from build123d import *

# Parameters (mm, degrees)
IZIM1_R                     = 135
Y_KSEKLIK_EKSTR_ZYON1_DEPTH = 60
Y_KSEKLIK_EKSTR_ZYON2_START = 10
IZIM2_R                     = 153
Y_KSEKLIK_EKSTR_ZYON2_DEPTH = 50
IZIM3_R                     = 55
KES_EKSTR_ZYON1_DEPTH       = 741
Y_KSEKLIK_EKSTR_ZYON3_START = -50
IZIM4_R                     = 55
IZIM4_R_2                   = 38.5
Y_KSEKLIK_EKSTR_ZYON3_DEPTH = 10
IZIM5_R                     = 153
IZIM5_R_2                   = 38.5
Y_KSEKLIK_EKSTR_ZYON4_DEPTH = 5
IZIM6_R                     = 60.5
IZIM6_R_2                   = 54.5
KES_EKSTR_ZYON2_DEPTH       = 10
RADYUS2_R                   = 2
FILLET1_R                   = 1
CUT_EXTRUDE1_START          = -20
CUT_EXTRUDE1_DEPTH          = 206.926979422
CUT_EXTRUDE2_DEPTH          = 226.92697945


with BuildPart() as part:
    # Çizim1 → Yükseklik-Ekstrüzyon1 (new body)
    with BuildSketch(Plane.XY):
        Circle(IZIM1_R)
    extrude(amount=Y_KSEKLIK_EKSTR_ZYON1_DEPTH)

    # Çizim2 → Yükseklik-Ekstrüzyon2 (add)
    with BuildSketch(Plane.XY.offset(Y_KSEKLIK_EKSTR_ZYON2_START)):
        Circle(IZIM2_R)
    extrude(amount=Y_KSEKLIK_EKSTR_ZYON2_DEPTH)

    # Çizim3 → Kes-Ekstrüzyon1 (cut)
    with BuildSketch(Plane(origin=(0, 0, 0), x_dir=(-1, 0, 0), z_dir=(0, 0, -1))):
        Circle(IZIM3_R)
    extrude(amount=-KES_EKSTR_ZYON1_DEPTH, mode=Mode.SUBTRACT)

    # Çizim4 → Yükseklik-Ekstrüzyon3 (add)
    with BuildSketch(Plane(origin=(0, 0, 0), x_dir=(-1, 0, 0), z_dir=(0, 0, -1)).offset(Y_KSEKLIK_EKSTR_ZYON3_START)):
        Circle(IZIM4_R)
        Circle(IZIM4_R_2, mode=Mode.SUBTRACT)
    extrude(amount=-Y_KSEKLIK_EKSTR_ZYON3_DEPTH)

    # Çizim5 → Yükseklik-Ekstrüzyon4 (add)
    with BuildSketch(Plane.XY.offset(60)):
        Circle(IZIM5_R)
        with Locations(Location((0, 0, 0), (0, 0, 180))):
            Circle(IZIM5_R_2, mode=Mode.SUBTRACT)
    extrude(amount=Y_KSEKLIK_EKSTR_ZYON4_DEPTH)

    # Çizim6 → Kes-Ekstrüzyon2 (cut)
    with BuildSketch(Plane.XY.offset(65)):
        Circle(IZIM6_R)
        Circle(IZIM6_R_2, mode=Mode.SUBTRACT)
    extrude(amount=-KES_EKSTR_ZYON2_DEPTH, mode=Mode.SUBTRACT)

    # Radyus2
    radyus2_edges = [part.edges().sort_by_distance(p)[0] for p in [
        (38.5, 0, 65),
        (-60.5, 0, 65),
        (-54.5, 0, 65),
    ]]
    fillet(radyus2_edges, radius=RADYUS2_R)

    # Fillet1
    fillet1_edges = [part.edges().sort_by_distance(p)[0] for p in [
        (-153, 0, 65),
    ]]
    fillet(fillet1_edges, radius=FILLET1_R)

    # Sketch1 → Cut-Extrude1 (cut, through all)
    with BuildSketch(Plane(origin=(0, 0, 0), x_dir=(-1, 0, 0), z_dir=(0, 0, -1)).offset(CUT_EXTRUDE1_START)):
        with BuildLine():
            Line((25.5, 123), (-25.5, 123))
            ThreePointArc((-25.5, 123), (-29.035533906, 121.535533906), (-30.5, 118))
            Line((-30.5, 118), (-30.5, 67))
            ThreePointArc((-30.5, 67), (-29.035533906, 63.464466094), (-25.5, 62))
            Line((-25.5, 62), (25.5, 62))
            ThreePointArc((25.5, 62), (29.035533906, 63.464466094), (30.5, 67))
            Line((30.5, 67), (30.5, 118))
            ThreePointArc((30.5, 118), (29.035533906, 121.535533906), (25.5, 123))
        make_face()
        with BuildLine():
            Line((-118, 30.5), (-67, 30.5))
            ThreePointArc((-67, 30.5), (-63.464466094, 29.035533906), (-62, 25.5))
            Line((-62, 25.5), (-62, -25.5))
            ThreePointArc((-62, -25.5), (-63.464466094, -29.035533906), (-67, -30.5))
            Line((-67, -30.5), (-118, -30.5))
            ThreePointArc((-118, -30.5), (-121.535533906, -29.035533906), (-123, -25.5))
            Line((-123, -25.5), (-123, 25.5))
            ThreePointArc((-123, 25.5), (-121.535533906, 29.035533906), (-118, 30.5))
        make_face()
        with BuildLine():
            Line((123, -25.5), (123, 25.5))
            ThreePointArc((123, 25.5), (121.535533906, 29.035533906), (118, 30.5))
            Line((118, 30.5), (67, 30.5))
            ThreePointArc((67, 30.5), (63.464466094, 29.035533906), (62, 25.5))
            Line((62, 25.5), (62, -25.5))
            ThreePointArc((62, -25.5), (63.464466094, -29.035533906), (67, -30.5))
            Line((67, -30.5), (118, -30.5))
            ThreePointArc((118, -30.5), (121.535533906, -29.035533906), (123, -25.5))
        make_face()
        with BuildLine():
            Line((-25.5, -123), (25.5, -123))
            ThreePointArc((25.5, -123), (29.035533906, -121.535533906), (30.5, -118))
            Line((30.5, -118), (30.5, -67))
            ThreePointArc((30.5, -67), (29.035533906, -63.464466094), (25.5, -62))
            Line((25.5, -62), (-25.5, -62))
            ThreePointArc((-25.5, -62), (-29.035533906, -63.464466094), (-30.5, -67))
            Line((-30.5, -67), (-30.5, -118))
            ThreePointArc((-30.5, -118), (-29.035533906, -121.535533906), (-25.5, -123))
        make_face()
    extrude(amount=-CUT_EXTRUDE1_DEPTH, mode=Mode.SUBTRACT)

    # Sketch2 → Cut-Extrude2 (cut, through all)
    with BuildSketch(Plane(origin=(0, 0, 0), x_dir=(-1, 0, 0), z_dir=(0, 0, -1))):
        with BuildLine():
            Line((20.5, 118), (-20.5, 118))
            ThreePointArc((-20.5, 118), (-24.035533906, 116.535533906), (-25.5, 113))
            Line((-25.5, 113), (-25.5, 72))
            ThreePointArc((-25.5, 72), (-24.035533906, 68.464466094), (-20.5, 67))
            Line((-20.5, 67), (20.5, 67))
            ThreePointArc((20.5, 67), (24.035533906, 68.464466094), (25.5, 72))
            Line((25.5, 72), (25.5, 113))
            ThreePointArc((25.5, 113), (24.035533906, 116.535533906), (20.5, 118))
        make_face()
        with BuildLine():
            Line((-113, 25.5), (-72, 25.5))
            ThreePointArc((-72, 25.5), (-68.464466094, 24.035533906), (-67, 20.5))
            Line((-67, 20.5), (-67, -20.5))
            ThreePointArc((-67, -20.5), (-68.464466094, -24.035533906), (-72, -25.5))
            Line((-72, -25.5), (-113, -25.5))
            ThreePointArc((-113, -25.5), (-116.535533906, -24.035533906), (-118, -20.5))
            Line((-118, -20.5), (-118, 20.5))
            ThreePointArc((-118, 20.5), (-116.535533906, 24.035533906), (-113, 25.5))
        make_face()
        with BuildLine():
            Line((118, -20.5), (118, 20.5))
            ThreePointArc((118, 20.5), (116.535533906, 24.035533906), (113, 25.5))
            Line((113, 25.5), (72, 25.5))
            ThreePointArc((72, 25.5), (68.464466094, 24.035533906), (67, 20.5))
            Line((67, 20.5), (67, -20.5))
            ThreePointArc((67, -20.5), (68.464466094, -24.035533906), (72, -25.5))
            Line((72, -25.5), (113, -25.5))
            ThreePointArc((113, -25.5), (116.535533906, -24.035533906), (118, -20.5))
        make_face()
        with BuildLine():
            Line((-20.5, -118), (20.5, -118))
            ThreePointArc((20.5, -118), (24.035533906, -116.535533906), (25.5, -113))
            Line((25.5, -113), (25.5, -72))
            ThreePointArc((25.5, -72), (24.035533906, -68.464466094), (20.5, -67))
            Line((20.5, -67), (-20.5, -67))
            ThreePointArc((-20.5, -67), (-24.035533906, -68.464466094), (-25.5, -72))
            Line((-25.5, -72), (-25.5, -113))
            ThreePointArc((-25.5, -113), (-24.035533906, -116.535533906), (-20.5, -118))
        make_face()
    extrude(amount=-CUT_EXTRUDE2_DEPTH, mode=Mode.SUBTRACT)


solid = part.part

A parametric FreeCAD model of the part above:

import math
import FreeCAD as App
import Part
import Sketcher


def edges_at(feature, points):
    """Names of the edges that pass closest to the given points."""
    edges = feature.Shape.Edges
    near = lambda p: min(range(len(edges)), key=lambda i: edges[i].distToShape(Part.Vertex(*p))[0])
    return sorted({f"Edge{near(p) + 1}" for p in points})

doc = App.newDocument("Part")
body = doc.addObject("PartDesign::Body", "Body")

# Sketch on XY plane
sketch1 = doc.addObject("Sketcher::SketchObject", "Sketch")
body.addObject(sketch1)
sketch1.AttachmentSupport = (doc.XY_Plane, [""])
sketch1.MapMode = "FlatFace"
sketch1.addGeometry(Part.Circle(App.Vector(0, 0, 0), App.Vector(0, 0, 1), 135), False)
sketch1.addConstraint([
    Sketcher.Constraint("Coincident", 0, 3, -1, 1),
    Sketcher.Constraint("Diameter", 0, 270.0),
])
pad1 = doc.addObject("PartDesign::Pad", "Pad")
body.addObject(pad1)
pad1.Profile = sketch1
pad1.Length = 60

# Sketch on XY plane
sketch2 = doc.addObject("Sketcher::SketchObject", "Sketch001")
body.addObject(sketch2)
sketch2.AttachmentSupport = (doc.XY_Plane, [""])
sketch2.MapMode = "FlatFace"
sketch2.AttachmentOffset = App.Placement(App.Vector(0, 0, 10), App.Rotation())
sketch2.addGeometry(Part.Circle(App.Vector(0, 0, 0), App.Vector(0, 0, 1), 153), False)
sketch2.addConstraint([
    Sketcher.Constraint("Coincident", 0, 3, -1, 1),
    Sketcher.Constraint("Diameter", 0, 306.0),
])
pad2 = doc.addObject("PartDesign::Pad", "Pad001")
body.addObject(pad2)
pad2.Profile = sketch2
pad2.Length = 50

# Sketch on XY plane
sketch3 = doc.addObject("Sketcher::SketchObject", "Sketch002")
body.addObject(sketch3)
sketch3.AttachmentSupport = (doc.XY_Plane, [""])
sketch3.MapMode = "FlatFace"
sketch3.addGeometry(Part.Circle(App.Vector(0, 0, 0), App.Vector(0, 0, 1), 55), False)
sketch3.addConstraint([
    Sketcher.Constraint("Coincident", 0, 3, -1, 1),
    Sketcher.Constraint("Diameter", 0, 110.0),
])
pocket1 = doc.addObject("PartDesign::Pocket", "Pocket")
body.addObject(pocket1)
pocket1.Profile = sketch3
pocket1.Length = 741
pocket1.Reversed = True

# Sketch on XY plane
sketch4 = doc.addObject("Sketcher::SketchObject", "Sketch003")
body.addObject(sketch4)
sketch4.AttachmentSupport = (doc.XY_Plane, [""])
sketch4.MapMode = "FlatFace"
sketch4.AttachmentOffset = App.Placement(App.Vector(0, 0, 50), App.Rotation())
sketch4.addGeometry([
    Part.Circle(App.Vector(0, 0, 0), App.Vector(0, 0, 1), 55),
    Part.Circle(App.Vector(0, 0, 0), App.Vector(0, 0, 1), 38),
], False)
sketch4.addConstraint([
    Sketcher.Constraint("Coincident", 0, 3, -1, 1),
    Sketcher.Constraint("Coincident", 1, 3, -1, 1),
    Sketcher.Constraint("Diameter", 0, 110.0),
    Sketcher.Constraint("Diameter", 1, 77.0),
])
pad3 = doc.addObject("PartDesign::Pad", "Pad002")
body.addObject(pad3)
pad3.Profile = sketch4
pad3.Length = 10

# Sketch on XY plane
sketch5 = doc.addObject("Sketcher::SketchObject", "Sketch004")
body.addObject(sketch5)
sketch5.AttachmentSupport = (doc.XY_Plane, [""])
sketch5.MapMode = "FlatFace"
sketch5.AttachmentOffset = App.Placement(App.Vector(0, 0, 60), App.Rotation())
sketch5.addGeometry([
    Part.Circle(App.Vector(0, 0, 0), App.Vector(0, 0, 1), 153),
    Part.Circle(App.Vector(0, 0, 0), App.Vector(0, 0, 1), 38),
], False)
sketch5.addConstraint([
    Sketcher.Constraint("Coincident", 0, 3, -1, 1),
    Sketcher.Constraint("Coincident", 1, 3, -1, 1),
    Sketcher.Constraint("Diameter", 0, 306.0),
    Sketcher.Constraint("Diameter", 1, 77.0),
])
pad4 = doc.addObject("PartDesign::Pad", "Pad003")
body.addObject(pad4)
pad4.Profile = sketch5
pad4.Length = 5

# Sketch on XY plane
sketch6 = doc.addObject("Sketcher::SketchObject", "Sketch005")
body.addObject(sketch6)
sketch6.AttachmentSupport = (doc.XY_Plane, [""])
sketch6.MapMode = "FlatFace"
sketch6.AttachmentOffset = App.Placement(App.Vector(0, 0, 65), App.Rotation())
sketch6.addGeometry([
    Part.Circle(App.Vector(0, 0, 0), App.Vector(0, 0, 1), 60),
    Part.Circle(App.Vector(0, 0, 0), App.Vector(0, 0, 1), 54),
], False)
sketch6.addConstraint([
    Sketcher.Constraint("Coincident", 0, 3, -1, 1),
    Sketcher.Constraint("Coincident", 1, 3, -1, 1),
    Sketcher.Constraint("Diameter", 0, 121.0),
    Sketcher.Constraint("Diameter", 1, 109.0),
])
pocket2 = doc.addObject("PartDesign::Pocket", "Pocket001")
body.addObject(pocket2)
pocket2.Profile = sketch6
pocket2.Length = 10
doc.recompute()

fillet = doc.addObject("PartDesign::Fillet", "Fillet")
body.addObject(fillet)
fillet.Base = (pocket2, edges_at(pocket2, [(38.5, 0, 65), (-60.5, 0, 65), (-54.5, 0, 65)]))
fillet.Radius = 2
doc.recompute()

fillet2 = doc.addObject("PartDesign::Fillet", "Fillet001")
body.addObject(fillet2)
fillet2.Base = (fillet, edges_at(fillet, [(-153, 0, 65)]))
fillet2.Radius = 1

# Sketch on XY plane
sketch7 = doc.addObject("Sketcher::SketchObject", "Sketch006")
body.addObject(sketch7)
sketch7.AttachmentSupport = (doc.XY_Plane, [""])
sketch7.MapMode = "FlatFace"
sketch7.AttachmentOffset = App.Placement(App.Vector(0, 0, 20), App.Rotation())
sketch7.addGeometry([
    Part.LineSegment(App.Vector(-26, 123, 0), App.Vector(26, 123, 0)),  # 0
    Part.ArcOfCircle(Part.Circle(App.Vector(26, 118, 0), App.Vector(0, 0, 1), 5), math.radians(0), math.radians(90)),  # 1
    Part.LineSegment(App.Vector(30, 118, 0), App.Vector(30, 67, 0)),  # 2
    Part.ArcOfCircle(Part.Circle(App.Vector(26, 67, 0), App.Vector(0, 0, 1), 5), math.radians(-90), math.radians(0)),  # 3
    Part.LineSegment(App.Vector(26, 62, 0), App.Vector(-26, 62, 0)),  # 4
    Part.ArcOfCircle(Part.Circle(App.Vector(-26, 67, 0), App.Vector(0, 0, 1), 5), math.radians(180), math.radians(270)),  # 5
    Part.LineSegment(App.Vector(-30, 67, 0), App.Vector(-30, 118, 0)),  # 6
    Part.ArcOfCircle(Part.Circle(App.Vector(-26, 118, 0), App.Vector(0, 0, 1), 5), math.radians(90), math.radians(180)),  # 7
    Part.LineSegment(App.Vector(67, 30, 0), App.Vector(118, 30, 0)),  # 8
    Part.ArcOfCircle(Part.Circle(App.Vector(118, 26, 0), App.Vector(0, 0, 1), 5), math.radians(0), math.radians(90)),  # 9
    Part.LineSegment(App.Vector(123, 26, 0), App.Vector(123, -26, 0)),  # 10
    Part.ArcOfCircle(Part.Circle(App.Vector(118, -26, 0), App.Vector(0, 0, 1), 5), math.radians(-90), math.radians(0)),  # 11
    Part.LineSegment(App.Vector(118, -30, 0), App.Vector(67, -30, 0)),  # 12
    Part.ArcOfCircle(Part.Circle(App.Vector(67, -26, 0), App.Vector(0, 0, 1), 5), math.radians(180), math.radians(270)),  # 13
    Part.LineSegment(App.Vector(62, -26, 0), App.Vector(62, 26, 0)),  # 14
    Part.ArcOfCircle(Part.Circle(App.Vector(67, 26, 0), App.Vector(0, 0, 1), 5), math.radians(90), math.radians(180)),  # 15
    Part.LineSegment(App.Vector(-123, -26, 0), App.Vector(-123, 26, 0)),  # 16
    Part.ArcOfCircle(Part.Circle(App.Vector(-118, 26, 0), App.Vector(0, 0, 1), 5), math.radians(90), math.radians(180)),  # 17
    Part.LineSegment(App.Vector(-118, 30, 0), App.Vector(-67, 30, 0)),  # 18
    Part.ArcOfCircle(Part.Circle(App.Vector(-67, 26, 0), App.Vector(0, 0, 1), 5), math.radians(0), math.radians(90)),  # 19
    Part.LineSegment(App.Vector(-62, 26, 0), App.Vector(-62, -26, 0)),  # 20
    Part.ArcOfCircle(Part.Circle(App.Vector(-67, -26, 0), App.Vector(0, 0, 1), 5), math.radians(-90), math.radians(0)),  # 21
    Part.LineSegment(App.Vector(-67, -30, 0), App.Vector(-118, -30, 0)),  # 22
    Part.ArcOfCircle(Part.Circle(App.Vector(-118, -26, 0), App.Vector(0, 0, 1), 5), math.radians(180), math.radians(270)),  # 23
    Part.LineSegment(App.Vector(26, -123, 0), App.Vector(-26, -123, 0)),  # 24
    Part.ArcOfCircle(Part.Circle(App.Vector(-26, -118, 0), App.Vector(0, 0, 1), 5), math.radians(180), math.radians(270)),  # 25
    Part.LineSegment(App.Vector(-30, -118, 0), App.Vector(-30, -67, 0)),  # 26
    Part.ArcOfCircle(Part.Circle(App.Vector(-26, -67, 0), App.Vector(0, 0, 1), 5), math.radians(90), math.radians(180)),  # 27
    Part.LineSegment(App.Vector(-26, -62, 0), App.Vector(26, -62, 0)),  # 28
    Part.ArcOfCircle(Part.Circle(App.Vector(26, -67, 0), App.Vector(0, 0, 1), 5), math.radians(0), math.radians(90)),  # 29
    Part.LineSegment(App.Vector(30, -67, 0), App.Vector(30, -118, 0)),  # 30
    Part.ArcOfCircle(Part.Circle(App.Vector(26, -118, 0), App.Vector(0, 0, 1), 5), math.radians(-90), math.radians(0)),  # 31
], False)
sketch7.addConstraint([
    Sketcher.Constraint("Tangent", 0, 2, 1, 2),
    Sketcher.Constraint("Tangent", 1, 1, 2, 1),
    Sketcher.Constraint("Tangent", 2, 2, 3, 2),
    Sketcher.Constraint("Tangent", 3, 1, 4, 1),
    Sketcher.Constraint("Tangent", 4, 2, 5, 2),
    Sketcher.Constraint("Tangent", 5, 1, 6, 1),
    Sketcher.Constraint("Tangent", 6, 2, 7, 2),
    Sketcher.Constraint("Tangent", 7, 1, 0, 1),
    Sketcher.Constraint("Tangent", 8, 2, 9, 2),
    Sketcher.Constraint("Tangent", 9, 1, 10, 1),
    Sketcher.Constraint("Tangent", 10, 2, 11, 2),
    Sketcher.Constraint("Tangent", 11, 1, 12, 1),
    Sketcher.Constraint("Tangent", 12, 2, 13, 2),
    Sketcher.Constraint("Tangent", 13, 1, 14, 1),
    Sketcher.Constraint("Tangent", 14, 2, 15, 2),
    Sketcher.Constraint("Tangent", 15, 1, 8, 1),
    Sketcher.Constraint("Tangent", 16, 2, 17, 2),
    Sketcher.Constraint("Tangent", 17, 1, 18, 1),
    Sketcher.Constraint("Tangent", 18, 2, 19, 2),
    Sketcher.Constraint("Tangent", 19, 1, 20, 1),
    Sketcher.Constraint("Tangent", 20, 2, 21, 2),
    Sketcher.Constraint("Tangent", 21, 1, 22, 1),
    Sketcher.Constraint("Tangent", 22, 2, 23, 2),
    Sketcher.Constraint("Tangent", 23, 1, 16, 1),
    Sketcher.Constraint("Tangent", 24, 2, 25, 2),
    Sketcher.Constraint("Tangent", 25, 1, 26, 1),
    Sketcher.Constraint("Tangent", 26, 2, 27, 2),
    Sketcher.Constraint("Tangent", 27, 1, 28, 1),
    Sketcher.Constraint("Tangent", 28, 2, 29, 2),
    Sketcher.Constraint("Tangent", 29, 1, 30, 1),
    Sketcher.Constraint("Tangent", 30, 2, 31, 2),
    Sketcher.Constraint("Tangent", 31, 1, 24, 1),
    Sketcher.Constraint("Horizontal", 0),
    Sketcher.Constraint("Vertical", 2),
    Sketcher.Constraint("Horizontal", 4),
    Sketcher.Constraint("Vertical", 6),
    Sketcher.Constraint("Horizontal", 8),
    Sketcher.Constraint("Vertical", 10),
    Sketcher.Constraint("Horizontal", 12),
    Sketcher.Constraint("Vertical", 14),
    Sketcher.Constraint("Vertical", 16),
    Sketcher.Constraint("Horizontal", 18),
    Sketcher.Constraint("Vertical", 20),
    Sketcher.Constraint("Horizontal", 22),
    Sketcher.Constraint("Horizontal", 24),
    Sketcher.Constraint("Vertical", 26),
    Sketcher.Constraint("Horizontal", 28),
    Sketcher.Constraint("Vertical", 30),
    Sketcher.Constraint("Equal", 1, 3),
    Sketcher.Constraint("Equal", 3, 5),
    Sketcher.Constraint("Equal", 5, 7),
    Sketcher.Constraint("Equal", 7, 9),
    Sketcher.Constraint("Equal", 9, 11),
    Sketcher.Constraint("Equal", 11, 13),
    Sketcher.Constraint("Equal", 13, 15),
    Sketcher.Constraint("Equal", 15, 17),
    Sketcher.Constraint("Equal", 17, 19),
    Sketcher.Constraint("Equal", 19, 21),
    Sketcher.Constraint("Equal", 21, 23),
    Sketcher.Constraint("Equal", 23, 25),
    Sketcher.Constraint("Equal", 25, 27),
    Sketcher.Constraint("Equal", 27, 29),
    Sketcher.Constraint("Equal", 29, 31),
    Sketcher.Constraint("Symmetric", 11, 3, 17, 3, -1, 1),
    Sketcher.Constraint("Symmetric", 15, 3, 21, 3, -1, 1),
    Sketcher.Constraint("Symmetric", 1, 3, 25, 3, -1, 1),
    Sketcher.Constraint("Symmetric", 5, 3, 29, 3, -1, 1),
    Sketcher.Constraint("Horizontal", 15, 3, 17, 3),
    Sketcher.Constraint("Vertical", 7, 3, 25, 3),
    Sketcher.Constraint("Equal", 4, 8),
    Sketcher.Constraint("Equal", 28, 2),
    Sketcher.Constraint("Equal", 6, 10),
    Sketcher.Constraint("Radius", 1, 5.0),
    Sketcher.Constraint("DistanceX", 0, 1, 0, 2, 51.0),
    Sketcher.Constraint("DistanceY", -1, 1, 1, 3, 118.0),
    Sketcher.Constraint("DistanceX", -1, 1, 9, 3, 118.0),
])
pocket3 = doc.addObject("PartDesign::Pocket", "Pocket002")
body.addObject(pocket3)
pocket3.Profile = sketch7
pocket3.Type = "ThroughAll"
pocket3.Reversed = True

# Sketch on XY plane
sketch8 = doc.addObject("Sketcher::SketchObject", "Sketch007")
body.addObject(sketch8)
sketch8.AttachmentSupport = (doc.XY_Plane, [""])
sketch8.MapMode = "FlatFace"
sketch8.addGeometry([
    Part.LineSegment(App.Vector(-20, 118, 0), App.Vector(20, 118, 0)),  # 0
    Part.ArcOfCircle(Part.Circle(App.Vector(20, 113, 0), App.Vector(0, 0, 1), 5), math.radians(0), math.radians(90)),  # 1
    Part.LineSegment(App.Vector(26, 113, 0), App.Vector(26, 72, 0)),  # 2
    Part.ArcOfCircle(Part.Circle(App.Vector(20, 72, 0), App.Vector(0, 0, 1), 5), math.radians(-90), math.radians(0)),  # 3
    Part.LineSegment(App.Vector(20, 67, 0), App.Vector(-20, 67, 0)),  # 4
    Part.ArcOfCircle(Part.Circle(App.Vector(-20, 72, 0), App.Vector(0, 0, 1), 5), math.radians(180), math.radians(270)),  # 5
    Part.LineSegment(App.Vector(-26, 72, 0), App.Vector(-26, 113, 0)),  # 6
    Part.ArcOfCircle(Part.Circle(App.Vector(-20, 113, 0), App.Vector(0, 0, 1), 5), math.radians(90), math.radians(180)),  # 7
    Part.LineSegment(App.Vector(72, 26, 0), App.Vector(113, 26, 0)),  # 8
    Part.ArcOfCircle(Part.Circle(App.Vector(113, 20, 0), App.Vector(0, 0, 1), 5), math.radians(0), math.radians(90)),  # 9
    Part.LineSegment(App.Vector(118, 20, 0), App.Vector(118, -20, 0)),  # 10
    Part.ArcOfCircle(Part.Circle(App.Vector(113, -20, 0), App.Vector(0, 0, 1), 5), math.radians(-90), math.radians(0)),  # 11
    Part.LineSegment(App.Vector(113, -26, 0), App.Vector(72, -26, 0)),  # 12
    Part.ArcOfCircle(Part.Circle(App.Vector(72, -20, 0), App.Vector(0, 0, 1), 5), math.radians(180), math.radians(270)),  # 13
    Part.LineSegment(App.Vector(67, -20, 0), App.Vector(67, 20, 0)),  # 14
    Part.ArcOfCircle(Part.Circle(App.Vector(72, 20, 0), App.Vector(0, 0, 1), 5), math.radians(90), math.radians(180)),  # 15
    Part.LineSegment(App.Vector(-118, -20, 0), App.Vector(-118, 20, 0)),  # 16
    Part.ArcOfCircle(Part.Circle(App.Vector(-113, 20, 0), App.Vector(0, 0, 1), 5), math.radians(90), math.radians(180)),  # 17
    Part.LineSegment(App.Vector(-113, 26, 0), App.Vector(-72, 26, 0)),  # 18
    Part.ArcOfCircle(Part.Circle(App.Vector(-72, 20, 0), App.Vector(0, 0, 1), 5), math.radians(0), math.radians(90)),  # 19
    Part.LineSegment(App.Vector(-67, 20, 0), App.Vector(-67, -20, 0)),  # 20
    Part.ArcOfCircle(Part.Circle(App.Vector(-72, -20, 0), App.Vector(0, 0, 1), 5), math.radians(-90), math.radians(0)),  # 21
    Part.LineSegment(App.Vector(-72, -26, 0), App.Vector(-113, -26, 0)),  # 22
    Part.ArcOfCircle(Part.Circle(App.Vector(-113, -20, 0), App.Vector(0, 0, 1), 5), math.radians(180), math.radians(270)),  # 23
    Part.LineSegment(App.Vector(20, -118, 0), App.Vector(-20, -118, 0)),  # 24
    Part.ArcOfCircle(Part.Circle(App.Vector(-20, -113, 0), App.Vector(0, 0, 1), 5), math.radians(180), math.radians(270)),  # 25
    Part.LineSegment(App.Vector(-26, -113, 0), App.Vector(-26, -72, 0)),  # 26
    Part.ArcOfCircle(Part.Circle(App.Vector(-20, -72, 0), App.Vector(0, 0, 1), 5), math.radians(90), math.radians(180)),  # 27
    Part.LineSegment(App.Vector(-20, -67, 0), App.Vector(20, -67, 0)),  # 28
    Part.ArcOfCircle(Part.Circle(App.Vector(20, -72, 0), App.Vector(0, 0, 1), 5), math.radians(0), math.radians(90)),  # 29
    Part.LineSegment(App.Vector(26, -72, 0), App.Vector(26, -113, 0)),  # 30
    Part.ArcOfCircle(Part.Circle(App.Vector(20, -113, 0), App.Vector(0, 0, 1), 5), math.radians(-90), math.radians(0)),  # 31
], False)
sketch8.addConstraint([
    Sketcher.Constraint("Tangent", 0, 2, 1, 2),
    Sketcher.Constraint("Tangent", 1, 1, 2, 1),
    Sketcher.Constraint("Tangent", 2, 2, 3, 2),
    Sketcher.Constraint("Tangent", 3, 1, 4, 1),
    Sketcher.Constraint("Tangent", 4, 2, 5, 2),
    Sketcher.Constraint("Tangent", 5, 1, 6, 1),
    Sketcher.Constraint("Tangent", 6, 2, 7, 2),
    Sketcher.Constraint("Tangent", 7, 1, 0, 1),
    Sketcher.Constraint("Tangent", 8, 2, 9, 2),
    Sketcher.Constraint("Tangent", 9, 1, 10, 1),
    Sketcher.Constraint("Tangent", 10, 2, 11, 2),
    Sketcher.Constraint("Tangent", 11, 1, 12, 1),
    Sketcher.Constraint("Tangent", 12, 2, 13, 2),
    Sketcher.Constraint("Tangent", 13, 1, 14, 1),
    Sketcher.Constraint("Tangent", 14, 2, 15, 2),
    Sketcher.Constraint("Tangent", 15, 1, 8, 1),
    Sketcher.Constraint("Tangent", 16, 2, 17, 2),
    Sketcher.Constraint("Tangent", 17, 1, 18, 1),
    Sketcher.Constraint("Tangent", 18, 2, 19, 2),
    Sketcher.Constraint("Tangent", 19, 1, 20, 1),
    Sketcher.Constraint("Tangent", 20, 2, 21, 2),
    Sketcher.Constraint("Tangent", 21, 1, 22, 1),
    Sketcher.Constraint("Tangent", 22, 2, 23, 2),
    Sketcher.Constraint("Tangent", 23, 1, 16, 1),
    Sketcher.Constraint("Tangent", 24, 2, 25, 2),
    Sketcher.Constraint("Tangent", 25, 1, 26, 1),
    Sketcher.Constraint("Tangent", 26, 2, 27, 2),
    Sketcher.Constraint("Tangent", 27, 1, 28, 1),
    Sketcher.Constraint("Tangent", 28, 2, 29, 2),
    Sketcher.Constraint("Tangent", 29, 1, 30, 1),
    Sketcher.Constraint("Tangent", 30, 2, 31, 2),
    Sketcher.Constraint("Tangent", 31, 1, 24, 1),
    Sketcher.Constraint("Horizontal", 0),
    Sketcher.Constraint("Vertical", 2),
    Sketcher.Constraint("Horizontal", 4),
    Sketcher.Constraint("Vertical", 6),
    Sketcher.Constraint("Horizontal", 8),
    Sketcher.Constraint("Vertical", 10),
    Sketcher.Constraint("Horizontal", 12),
    Sketcher.Constraint("Vertical", 14),
    Sketcher.Constraint("Vertical", 16),
    Sketcher.Constraint("Horizontal", 18),
    Sketcher.Constraint("Vertical", 20),
    Sketcher.Constraint("Horizontal", 22),
    Sketcher.Constraint("Horizontal", 24),
    Sketcher.Constraint("Vertical", 26),
    Sketcher.Constraint("Horizontal", 28),
    Sketcher.Constraint("Vertical", 30),
    Sketcher.Constraint("Equal", 1, 3),
    Sketcher.Constraint("Equal", 3, 5),
    Sketcher.Constraint("Equal", 5, 7),
    Sketcher.Constraint("Equal", 7, 9),
    Sketcher.Constraint("Equal", 9, 11),
    Sketcher.Constraint("Equal", 11, 13),
    Sketcher.Constraint("Equal", 13, 15),
    Sketcher.Constraint("Equal", 15, 17),
    Sketcher.Constraint("Equal", 17, 19),
    Sketcher.Constraint("Equal", 19, 21),
    Sketcher.Constraint("Equal", 21, 23),
    Sketcher.Constraint("Equal", 23, 25),
    Sketcher.Constraint("Equal", 25, 27),
    Sketcher.Constraint("Equal", 27, 29),
    Sketcher.Constraint("Equal", 29, 31),
    Sketcher.Constraint("Symmetric", 11, 3, 17, 3, -1, 1),
    Sketcher.Constraint("Symmetric", 15, 3, 21, 3, -1, 1),
    Sketcher.Constraint("Symmetric", 1, 3, 25, 3, -1, 1),
    Sketcher.Constraint("Symmetric", 5, 3, 29, 3, -1, 1),
    Sketcher.Constraint("Horizontal", 15, 3, 17, 3),
    Sketcher.Constraint("Vertical", 7, 3, 25, 3),
    Sketcher.Constraint("Equal", 4, 8),
    Sketcher.Constraint("Equal", 28, 2),
    Sketcher.Constraint("Equal", 6, 10),
    Sketcher.Constraint("Radius", 1, 5.0),
    Sketcher.Constraint("DistanceX", 0, 1, 0, 2, 41.0),
    Sketcher.Constraint("DistanceY", -1, 1, 1, 3, 113.0),
    Sketcher.Constraint("DistanceX", -1, 1, 9, 3, 113.0),
])
pocket4 = doc.addObject("PartDesign::Pocket", "Pocket003")
body.addObject(pocket4)
pocket4.Profile = sketch8
pocket4.Type = "ThroughAll"
pocket4.Reversed = True

doc.recompute()
